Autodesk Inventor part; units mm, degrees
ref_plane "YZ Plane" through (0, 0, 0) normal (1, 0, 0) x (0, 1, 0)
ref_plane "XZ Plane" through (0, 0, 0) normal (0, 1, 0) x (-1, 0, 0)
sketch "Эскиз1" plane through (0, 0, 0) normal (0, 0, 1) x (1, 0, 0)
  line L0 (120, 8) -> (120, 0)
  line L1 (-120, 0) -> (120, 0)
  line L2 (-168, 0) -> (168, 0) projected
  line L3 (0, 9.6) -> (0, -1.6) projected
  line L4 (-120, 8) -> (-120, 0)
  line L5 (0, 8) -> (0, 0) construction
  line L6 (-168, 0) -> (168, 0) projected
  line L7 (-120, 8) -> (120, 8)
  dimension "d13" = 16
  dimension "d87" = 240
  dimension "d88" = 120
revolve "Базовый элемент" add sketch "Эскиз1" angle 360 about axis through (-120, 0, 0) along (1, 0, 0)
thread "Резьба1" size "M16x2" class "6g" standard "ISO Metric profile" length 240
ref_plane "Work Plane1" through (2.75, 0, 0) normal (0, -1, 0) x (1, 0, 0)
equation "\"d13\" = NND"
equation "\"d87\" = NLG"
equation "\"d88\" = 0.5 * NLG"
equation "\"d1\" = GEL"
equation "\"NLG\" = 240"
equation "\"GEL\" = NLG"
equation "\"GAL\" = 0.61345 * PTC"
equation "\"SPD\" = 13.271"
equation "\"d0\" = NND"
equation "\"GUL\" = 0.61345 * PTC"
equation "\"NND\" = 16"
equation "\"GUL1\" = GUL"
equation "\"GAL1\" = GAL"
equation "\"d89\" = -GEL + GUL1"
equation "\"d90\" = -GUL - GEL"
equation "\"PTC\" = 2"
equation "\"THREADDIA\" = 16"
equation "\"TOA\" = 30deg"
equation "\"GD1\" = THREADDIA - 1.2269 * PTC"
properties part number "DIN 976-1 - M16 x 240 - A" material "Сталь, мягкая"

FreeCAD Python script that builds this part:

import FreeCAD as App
import Part
import Sketcher
Q = App.Units.Quantity


def add_polygon(sketch, points):
    """Adds a closed chain of lines whose ends are joined by coincident constraints."""
    first, n = sketch.GeometryCount, len(points)
    for a, b in zip(points, points[1:] + points[:1]):
        sketch.addGeometry(Part.LineSegment(App.Vector(*a, 0), App.Vector(*b, 0)), False)
    for i in range(n):
        sketch.addConstraint(Sketcher.Constraint("Coincident", first + i, 2, first + (i + 1) % n, 1))

doc = App.newDocument("Part")
body = doc.addObject("PartDesign::Body", "Body")

# Sketch on XY plane
sketch1 = body.newObject("Sketcher::SketchObject", "Sketch")
sketch1.AttachmentSupport = (doc.getObject("XY_Plane"), [""])
sketch1.MapMode = "FlatFace"
add_polygon(sketch1, [(120, 0), (120, 8), (-120, 8), (-120, 0)])  # lines 0-3
sketch1.addConstraint([
    Sketcher.Constraint("Vertical", 0),
    Sketcher.Constraint("Horizontal", 1),
    Sketcher.Constraint("Vertical", 2),
    Sketcher.Constraint("Horizontal", 3),
    Sketcher.Constraint("Symmetric", 2, 2, 3, 2, -1, 1),
    Sketcher.Constraint("DistanceX", 1, 2, 1, 1, Q("240 mm")),
    Sketcher.Constraint("DistanceY", 0, 1, 0, 2, Q("8 mm")),
])
revolution = body.newObject("PartDesign::Revolution", "Revolution")
revolution.Profile = sketch1
revolution.ReferenceAxis = (sketch1, ["H_Axis"])
revolution.Angle = 360

doc.recompute()
